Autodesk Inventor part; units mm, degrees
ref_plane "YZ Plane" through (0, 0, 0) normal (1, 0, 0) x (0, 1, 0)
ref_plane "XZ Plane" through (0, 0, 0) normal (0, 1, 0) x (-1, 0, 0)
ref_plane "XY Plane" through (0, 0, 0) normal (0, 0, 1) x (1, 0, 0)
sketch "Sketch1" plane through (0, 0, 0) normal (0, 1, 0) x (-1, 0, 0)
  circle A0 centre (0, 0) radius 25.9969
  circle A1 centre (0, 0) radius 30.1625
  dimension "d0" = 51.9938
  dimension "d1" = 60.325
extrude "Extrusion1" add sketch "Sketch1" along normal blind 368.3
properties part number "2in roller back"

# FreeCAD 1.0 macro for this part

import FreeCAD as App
import Part
import Sketcher

V = App.Vector
Q = App.Units.Quantity

doc = App.newDocument("Part")
params = doc.addObject("Spreadsheet::Sheet", "Params")
for row, (alias, value) in enumerate([
    ("sketch1_diameter", "2.375 in"),
    ("sketch1_diameter2", "2.047 in"),
    ("pad1_length", "14.5 in"),
], start=1):
    params.set(f"A{row}", alias)
    params.set(f"B{row}", "=" + value)
    params.setAlias(f"B{row}", alias)

body = doc.addObject("PartDesign::Body", "Body")

# Sketch on XZ plane
sketch1 = body.newObject("Sketcher::SketchObject", "Sketch")
sketch1.AttachmentSupport = (doc.getObject("XZ_Plane"), [""])
sketch1.MapMode = "FlatFace"
sketch1.addGeometry([
    Part.Circle(V(0, 0, 0), V(0, 0, 1), 30),
    Part.Circle(V(0, 0, 0), V(0, 0, 1), 26),
], False)
sketch1.addConstraint([
    Sketcher.Constraint("Coincident", 0, 3, -1, 1),
    Sketcher.Constraint("Coincident", 1, 3, -1, 1),
    Sketcher.Constraint("Diameter", 0, Q("2.375 in")),
    Sketcher.Constraint("Diameter", 1, Q("2.047 in")),
])
sketch1.setExpression("Constraints[2]", "Params.sketch1_diameter")
sketch1.setExpression("Constraints[3]", "Params.sketch1_diameter2")
pad1 = body.newObject("PartDesign::Pad", "Pad")
pad1.Profile = sketch1
pad1.setExpression("Length", "Params.pad1_length")
pad1.Reversed = True

doc.recompute()
